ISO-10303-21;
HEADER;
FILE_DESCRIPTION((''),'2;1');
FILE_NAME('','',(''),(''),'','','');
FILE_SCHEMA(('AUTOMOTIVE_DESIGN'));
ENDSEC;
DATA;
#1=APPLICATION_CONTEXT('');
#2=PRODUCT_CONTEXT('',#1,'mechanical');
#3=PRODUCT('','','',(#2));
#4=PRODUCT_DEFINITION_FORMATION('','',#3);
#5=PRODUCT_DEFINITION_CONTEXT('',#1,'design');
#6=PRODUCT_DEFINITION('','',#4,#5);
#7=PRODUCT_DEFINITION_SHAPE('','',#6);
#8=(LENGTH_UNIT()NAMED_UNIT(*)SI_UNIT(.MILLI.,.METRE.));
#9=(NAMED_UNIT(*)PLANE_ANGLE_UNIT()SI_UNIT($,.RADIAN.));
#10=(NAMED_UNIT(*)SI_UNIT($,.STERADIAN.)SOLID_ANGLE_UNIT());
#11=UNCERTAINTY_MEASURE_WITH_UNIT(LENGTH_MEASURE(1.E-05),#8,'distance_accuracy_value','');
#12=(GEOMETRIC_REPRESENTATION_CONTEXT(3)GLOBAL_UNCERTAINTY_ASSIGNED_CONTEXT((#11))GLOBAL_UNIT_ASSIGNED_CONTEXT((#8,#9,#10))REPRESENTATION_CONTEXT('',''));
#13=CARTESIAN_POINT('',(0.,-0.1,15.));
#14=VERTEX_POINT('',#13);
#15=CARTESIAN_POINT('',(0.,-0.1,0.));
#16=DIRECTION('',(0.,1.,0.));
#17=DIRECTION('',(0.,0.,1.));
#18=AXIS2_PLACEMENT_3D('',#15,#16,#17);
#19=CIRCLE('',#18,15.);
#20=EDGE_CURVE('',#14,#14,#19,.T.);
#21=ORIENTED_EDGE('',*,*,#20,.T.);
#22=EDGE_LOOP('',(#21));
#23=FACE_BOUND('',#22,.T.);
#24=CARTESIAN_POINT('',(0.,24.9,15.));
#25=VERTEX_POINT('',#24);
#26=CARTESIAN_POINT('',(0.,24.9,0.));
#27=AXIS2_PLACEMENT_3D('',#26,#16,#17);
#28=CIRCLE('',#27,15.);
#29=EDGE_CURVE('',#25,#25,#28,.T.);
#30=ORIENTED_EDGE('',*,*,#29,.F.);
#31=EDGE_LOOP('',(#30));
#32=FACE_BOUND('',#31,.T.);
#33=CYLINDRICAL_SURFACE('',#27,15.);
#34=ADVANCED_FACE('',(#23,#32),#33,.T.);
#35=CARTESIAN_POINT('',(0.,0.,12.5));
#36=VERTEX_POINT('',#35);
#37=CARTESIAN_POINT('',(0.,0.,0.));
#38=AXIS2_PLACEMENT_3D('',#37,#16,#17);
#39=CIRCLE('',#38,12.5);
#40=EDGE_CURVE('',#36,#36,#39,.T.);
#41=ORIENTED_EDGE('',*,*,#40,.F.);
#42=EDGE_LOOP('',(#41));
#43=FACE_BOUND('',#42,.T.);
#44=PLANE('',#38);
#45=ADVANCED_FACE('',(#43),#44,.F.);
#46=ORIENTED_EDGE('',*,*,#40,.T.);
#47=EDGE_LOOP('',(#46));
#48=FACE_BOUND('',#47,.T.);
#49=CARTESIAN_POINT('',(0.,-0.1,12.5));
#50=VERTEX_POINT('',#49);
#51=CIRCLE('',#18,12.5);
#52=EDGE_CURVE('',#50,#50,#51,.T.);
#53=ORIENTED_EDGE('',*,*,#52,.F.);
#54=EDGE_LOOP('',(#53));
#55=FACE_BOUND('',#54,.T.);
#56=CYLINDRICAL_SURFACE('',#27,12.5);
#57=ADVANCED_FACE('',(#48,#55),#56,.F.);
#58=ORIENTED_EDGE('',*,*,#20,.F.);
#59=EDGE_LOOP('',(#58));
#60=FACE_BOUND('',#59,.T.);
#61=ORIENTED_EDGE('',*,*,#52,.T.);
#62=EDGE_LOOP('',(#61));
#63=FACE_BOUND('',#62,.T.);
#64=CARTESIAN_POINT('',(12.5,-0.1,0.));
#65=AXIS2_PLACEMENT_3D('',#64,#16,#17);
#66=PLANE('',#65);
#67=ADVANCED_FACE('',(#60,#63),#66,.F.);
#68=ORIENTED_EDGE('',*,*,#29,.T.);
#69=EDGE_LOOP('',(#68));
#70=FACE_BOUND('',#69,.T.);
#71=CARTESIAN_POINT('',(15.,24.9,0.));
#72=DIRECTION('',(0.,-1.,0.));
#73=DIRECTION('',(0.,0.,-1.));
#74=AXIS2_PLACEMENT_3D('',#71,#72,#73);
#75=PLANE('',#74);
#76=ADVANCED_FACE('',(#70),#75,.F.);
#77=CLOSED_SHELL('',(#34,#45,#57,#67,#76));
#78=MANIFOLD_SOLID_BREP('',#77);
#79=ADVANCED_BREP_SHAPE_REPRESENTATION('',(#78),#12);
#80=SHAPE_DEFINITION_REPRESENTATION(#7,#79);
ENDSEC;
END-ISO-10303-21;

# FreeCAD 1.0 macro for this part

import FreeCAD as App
import Part
import Sketcher


def add_polygon(sketch, points):
    """Adds a closed chain of lines whose ends are joined by coincident constraints."""
    first, n = sketch.GeometryCount, len(points)
    for a, b in zip(points, points[1:] + points[:1]):
        sketch.addGeometry(Part.LineSegment(App.Vector(*a, 0), App.Vector(*b, 0)), False)
    for i in range(n):
        sketch.addConstraint(Sketcher.Constraint("Coincident", first + i, 2, first + (i + 1) % n, 1))

doc = App.newDocument("Part")
params = doc.addObject("Spreadsheet::Sheet", "Params")
for row, (alias, value) in enumerate([
    ("sketch1_width", "15 mm"),
    ("sketch1_height", "25 mm"),
    ("sketch1_width2", "12.5 mm"),
    ("sketch1_height2", "0.1 mm"),
    ("revolution_angle", "360 deg"),
], start=1):
    params.set(f"A{row}", alias)
    params.set(f"B{row}", "=" + value)
    params.setAlias(f"B{row}", alias)

body = doc.addObject("PartDesign::Body", "Body")

sketch1 = body.newObject("Sketcher::SketchObject", "Sketch")
sketch1.AttachmentSupport = (doc.getObject("XY_Plane"), [""])
sketch1.MapMode = "FlatFace"
add_polygon(sketch1, [(0, 0), (12.5, 0), (12.5, -0.1), (15, -0.1), (15, 24.9), (0, 24.9)])
sketch1.addConstraint(Sketcher.Constraint("Horizontal", 0))
sketch1.addConstraint(Sketcher.Constraint("Vertical", 1))
sketch1.addConstraint(Sketcher.Constraint("Horizontal", 2))
sketch1.addConstraint(Sketcher.Constraint("Vertical", 3))
sketch1.addConstraint(Sketcher.Constraint("Horizontal", 4))
sketch1.addConstraint(Sketcher.Constraint("Vertical", 5))
sketch1.addConstraint(Sketcher.Constraint("Coincident", 5, 2, -1, 1))
sketch1.addConstraint(Sketcher.Constraint("DistanceX", 4, 2, 4, 1, 15.0))
sketch1.addConstraint(Sketcher.Constraint("DistanceY", 3, 1, 3, 2, 25.0))
sketch1.addConstraint(Sketcher.Constraint("DistanceX", 0, 1, 0, 2, 12.5))
sketch1.addConstraint(Sketcher.Constraint("DistanceY", 1, 2, 1, 1, 0.1))
sketch1.setExpression("Constraints[13]", "Params.sketch1_width")
sketch1.setExpression("Constraints[14]", "Params.sketch1_height")
sketch1.setExpression("Constraints[15]", "Params.sketch1_width2")
sketch1.setExpression("Constraints[16]", "Params.sketch1_height2")
revolution = body.newObject("PartDesign::Revolution", "Revolution")
revolution.Profile = sketch1
revolution.ReferenceAxis = (sketch1, ["V_Axis"])
revolution.setExpression("Angle", "Params.revolution_angle")

doc.recompute()
